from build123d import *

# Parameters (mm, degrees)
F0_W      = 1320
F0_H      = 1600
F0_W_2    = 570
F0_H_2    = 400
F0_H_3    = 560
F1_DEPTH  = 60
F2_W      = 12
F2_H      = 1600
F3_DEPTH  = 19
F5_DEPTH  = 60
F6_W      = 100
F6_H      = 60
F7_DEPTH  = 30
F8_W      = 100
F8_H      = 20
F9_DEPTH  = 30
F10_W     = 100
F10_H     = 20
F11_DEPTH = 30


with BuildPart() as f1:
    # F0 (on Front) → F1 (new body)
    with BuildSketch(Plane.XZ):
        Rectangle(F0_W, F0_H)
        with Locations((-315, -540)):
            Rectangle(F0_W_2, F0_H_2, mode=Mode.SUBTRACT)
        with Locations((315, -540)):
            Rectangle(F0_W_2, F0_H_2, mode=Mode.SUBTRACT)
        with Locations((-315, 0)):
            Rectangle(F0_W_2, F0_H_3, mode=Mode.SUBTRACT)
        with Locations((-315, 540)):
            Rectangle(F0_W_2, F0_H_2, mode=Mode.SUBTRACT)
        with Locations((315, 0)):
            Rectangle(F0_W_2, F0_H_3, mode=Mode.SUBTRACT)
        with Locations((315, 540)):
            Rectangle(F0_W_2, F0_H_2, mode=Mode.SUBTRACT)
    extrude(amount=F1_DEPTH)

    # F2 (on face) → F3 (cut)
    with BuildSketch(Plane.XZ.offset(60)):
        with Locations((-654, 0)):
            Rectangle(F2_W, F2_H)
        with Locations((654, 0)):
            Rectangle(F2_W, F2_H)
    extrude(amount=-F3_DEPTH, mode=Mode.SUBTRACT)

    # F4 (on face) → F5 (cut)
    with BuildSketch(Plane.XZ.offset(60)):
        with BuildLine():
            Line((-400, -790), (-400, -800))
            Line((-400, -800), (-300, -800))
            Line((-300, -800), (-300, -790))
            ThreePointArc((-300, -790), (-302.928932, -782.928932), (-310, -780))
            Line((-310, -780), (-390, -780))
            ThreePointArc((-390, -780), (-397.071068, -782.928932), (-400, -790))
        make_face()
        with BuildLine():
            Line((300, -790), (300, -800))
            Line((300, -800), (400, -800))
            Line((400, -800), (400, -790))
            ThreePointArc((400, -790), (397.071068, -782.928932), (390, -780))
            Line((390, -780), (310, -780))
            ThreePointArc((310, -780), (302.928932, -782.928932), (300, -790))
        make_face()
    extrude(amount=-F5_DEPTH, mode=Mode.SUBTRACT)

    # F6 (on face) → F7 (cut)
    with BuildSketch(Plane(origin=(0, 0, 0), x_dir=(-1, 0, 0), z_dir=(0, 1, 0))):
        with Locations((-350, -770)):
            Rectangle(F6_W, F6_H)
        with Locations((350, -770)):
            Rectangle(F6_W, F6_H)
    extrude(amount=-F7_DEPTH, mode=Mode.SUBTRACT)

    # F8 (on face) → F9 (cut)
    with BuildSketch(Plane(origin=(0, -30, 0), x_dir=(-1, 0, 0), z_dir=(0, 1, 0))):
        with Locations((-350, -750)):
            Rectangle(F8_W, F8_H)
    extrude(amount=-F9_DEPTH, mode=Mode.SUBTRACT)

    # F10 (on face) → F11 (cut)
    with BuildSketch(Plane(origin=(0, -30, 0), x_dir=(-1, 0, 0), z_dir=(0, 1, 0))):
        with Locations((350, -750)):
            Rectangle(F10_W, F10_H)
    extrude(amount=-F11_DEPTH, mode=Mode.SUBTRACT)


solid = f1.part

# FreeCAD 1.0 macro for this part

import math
import FreeCAD as App
import Part
import Sketcher

V = App.Vector
Q = App.Units.Quantity

doc = App.newDocument("Part")
body = doc.addObject("PartDesign::Body", "Body")

# Sketch on XZ plane
sketch1 = body.newObject("Sketcher::SketchObject", "Sketch")
sketch1.AttachmentSupport = (doc.getObject("XZ_Plane"), [""])
sketch1.MapMode = "FlatFace"
sketch1.addGeometry([
    Part.LineSegment(V(-660, 800, 0), V(-660, -800, 0)),  # 0
    Part.LineSegment(V(-660, -800, 0), V(660, -800, 0)),  # 1
    Part.LineSegment(V(660, -800, 0), V(660, 800, 0)),  # 2
    Part.LineSegment(V(660, 800, 0), V(-660, 800, 0)),  # 3
    Part.LineSegment(V(-30, -740, 0), V(-600, -740, 0)),  # 4
    Part.LineSegment(V(-600, -740, 0), V(-600, -340, 0)),  # 5
    Part.LineSegment(V(-600, -340, 0), V(-30, -340, 0)),  # 6
    Part.LineSegment(V(-30, -340, 0), V(-30, -740, 0)),  # 7
    Part.LineSegment(V(600, -740, 0), V(30, -740, 0)),  # 8
    Part.LineSegment(V(30, -740, 0), V(30, -340, 0)),  # 9
    Part.LineSegment(V(30, -340, 0), V(600, -340, 0)),  # 10
    Part.LineSegment(V(600, -340, 0), V(600, -740, 0)),  # 11
    Part.LineSegment(V(-30, -280, 0), V(-600, -280, 0)),  # 12
    Part.LineSegment(V(-600, -280, 0), V(-600, 280, 0)),  # 13
    Part.LineSegment(V(-600, 280, 0), V(-30, 280, 0)),  # 14
    Part.LineSegment(V(-30, 280, 0), V(-30, -280, 0)),  # 15
    Part.LineSegment(V(-30, 340, 0), V(-600, 340, 0)),  # 16
    Part.LineSegment(V(-600, 340, 0), V(-600, 740, 0)),  # 17
    Part.LineSegment(V(-600, 740, 0), V(-30, 740, 0)),  # 18
    Part.LineSegment(V(-30, 740, 0), V(-30, 340, 0)),  # 19
    Part.LineSegment(V(600, -280, 0), V(30, -280, 0)),  # 20
    Part.LineSegment(V(30, -280, 0), V(30, 280, 0)),  # 21
    Part.LineSegment(V(30, 280, 0), V(600, 280, 0)),  # 22
    Part.LineSegment(V(600, 280, 0), V(600, -280, 0)),  # 23
    Part.LineSegment(V(600, 340, 0), V(30, 340, 0)),  # 24
    Part.LineSegment(V(30, 340, 0), V(30, 740, 0)),  # 25
    Part.LineSegment(V(30, 740, 0), V(600, 740, 0)),  # 26
    Part.LineSegment(V(600, 740, 0), V(600, 340, 0)),  # 27
], False)
sketch1.addConstraint([
    Sketcher.Constraint("Coincident", 0, 2, 1, 1),
    Sketcher.Constraint("Coincident", 1, 2, 2, 1),
    Sketcher.Constraint("Coincident", 2, 2, 3, 1),
    Sketcher.Constraint("Coincident", 3, 2, 0, 1),
    Sketcher.Constraint("Coincident", 4, 2, 5, 1),
    Sketcher.Constraint("Coincident", 5, 2, 6, 1),
    Sketcher.Constraint("Coincident", 6, 2, 7, 1),
    Sketcher.Constraint("Coincident", 7, 2, 4, 1),
    Sketcher.Constraint("Coincident", 8, 2, 9, 1),
    Sketcher.Constraint("Coincident", 9, 2, 10, 1),
    Sketcher.Constraint("Coincident", 10, 2, 11, 1),
    Sketcher.Constraint("Coincident", 11, 2, 8, 1),
    Sketcher.Constraint("Coincident", 12, 2, 13, 1),
    Sketcher.Constraint("Coincident", 13, 2, 14, 1),
    Sketcher.Constraint("Coincident", 14, 2, 15, 1),
    Sketcher.Constraint("Coincident", 15, 2, 12, 1),
    Sketcher.Constraint("Coincident", 16, 2, 17, 1),
    Sketcher.Constraint("Coincident", 17, 2, 18, 1),
    Sketcher.Constraint("Coincident", 18, 2, 19, 1),
    Sketcher.Constraint("Coincident", 19, 2, 16, 1),
    Sketcher.Constraint("Coincident", 20, 2, 21, 1),
    Sketcher.Constraint("Coincident", 21, 2, 22, 1),
    Sketcher.Constraint("Coincident", 22, 2, 23, 1),
    Sketcher.Constraint("Coincident", 23, 2, 20, 1),
    Sketcher.Constraint("Coincident", 24, 2, 25, 1),
    Sketcher.Constraint("Coincident", 25, 2, 26, 1),
    Sketcher.Constraint("Coincident", 26, 2, 27, 1),
    Sketcher.Constraint("Coincident", 27, 2, 24, 1),
    Sketcher.Constraint("Vertical", 0),
    Sketcher.Constraint("Horizontal", 1),
    Sketcher.Constraint("Vertical", 2),
    Sketcher.Constraint("Horizontal", 3),
    Sketcher.Constraint("Horizontal", 4),
    Sketcher.Constraint("Vertical", 5),
    Sketcher.Constraint("Horizontal", 6),
    Sketcher.Constraint("Vertical", 7),
    Sketcher.Constraint("Horizontal", 8),
    Sketcher.Constraint("Vertical", 9),
    Sketcher.Constraint("Horizontal", 10),
    Sketcher.Constraint("Vertical", 11),
    Sketcher.Constraint("Horizontal", 12),
    Sketcher.Constraint("Vertical", 13),
    Sketcher.Constraint("Horizontal", 14),
    Sketcher.Constraint("Vertical", 15),
    Sketcher.Constraint("Horizontal", 16),
    Sketcher.Constraint("Vertical", 17),
    Sketcher.Constraint("Horizontal", 18),
    Sketcher.Constraint("Vertical", 19),
    Sketcher.Constraint("Horizontal", 20),
    Sketcher.Constraint("Vertical", 21),
    Sketcher.Constraint("Horizontal", 22),
    Sketcher.Constraint("Vertical", 23),
    Sketcher.Constraint("Horizontal", 24),
    Sketcher.Constraint("Vertical", 25),
    Sketcher.Constraint("Horizontal", 26),
    Sketcher.Constraint("Vertical", 27),
    Sketcher.Constraint("Symmetric", 0, 2, 2, 2, -1, 1),
    Sketcher.Constraint("Symmetric", 10, 2, 16, 2, -1, 1),
    Sketcher.Constraint("Symmetric", 8, 2, 18, 2, -1, 1),
    Sketcher.Constraint("Symmetric", 14, 2, 20, 2, -1, 1),
    Sketcher.Constraint("Symmetric", 12, 2, 22, 2, -1, 1),
    Sketcher.Constraint("Symmetric", 6, 2, 24, 2, -1, 1),
    Sketcher.Constraint("Symmetric", 4, 2, 26, 2, -1, 1),
    Sketcher.Constraint("Symmetric", 7, 2, 8, 2, -2),
    Sketcher.Constraint("Symmetric", 5, 2, 10, 2, -2),
    Sketcher.Constraint("Horizontal", 15, 2, 20, 2),
    Sketcher.Constraint("Vertical", 5, 2, 12, 2),
    Sketcher.Constraint("Vertical", 7, 2, 14, 2),
    Sketcher.Constraint("DistanceX", 1, 1, 1, 2, Q("1320 mm")),
    Sketcher.Constraint("DistanceX", 4, 2, 4, 1, Q("570 mm")),
    Sketcher.Constraint("DistanceY", 0, 2, 0, 1, Q("1600 mm")),
    Sketcher.Constraint("DistanceY", 5, 1, 5, 2, Q("400 mm")),
    Sketcher.Constraint("DistanceY", 13, 1, 13, 2, Q("560 mm")),
    Sketcher.Constraint("DistanceX", 4, 2, -1, 1, Q("600 mm")),
    Sketcher.Constraint("DistanceY", 4, 2, -1, 1, Q("740 mm")),
])
pad1 = body.newObject("PartDesign::Pad", "Pad")
pad1.Profile = sketch1
pad1.Length = 60

# Sketch on XZ plane
sketch2 = body.newObject("Sketcher::SketchObject", "Sketch001")
sketch2.AttachmentSupport = (doc.getObject("XZ_Plane"), [""])
sketch2.MapMode = "FlatFace"
sketch2.AttachmentOffset = App.Placement(V(0, 0, 60), App.Rotation())
sketch2.addGeometry([
    Part.LineSegment(V(-660, 800, 0), V(-660, -800, 0)),  # 0
    Part.LineSegment(V(-660, -800, 0), V(-648, -800, 0)),  # 1
    Part.LineSegment(V(-648, -800, 0), V(-648, 800, 0)),  # 2
    Part.LineSegment(V(-648, 800, 0), V(-660, 800, 0)),  # 3
    Part.LineSegment(V(648, 800, 0), V(648, -800, 0)),  # 4
    Part.LineSegment(V(648, -800, 0), V(660, -800, 0)),  # 5
    Part.LineSegment(V(660, -800, 0), V(660, 800, 0)),  # 6
    Part.LineSegment(V(660, 800, 0), V(648, 800, 0)),  # 7
], False)
sketch2.addConstraint([
    Sketcher.Constraint("Coincident", 0, 2, 1, 1),
    Sketcher.Constraint("Coincident", 1, 2, 2, 1),
    Sketcher.Constraint("Coincident", 2, 2, 3, 1),
    Sketcher.Constraint("Coincident", 3, 2, 0, 1),
    Sketcher.Constraint("Coincident", 4, 2, 5, 1),
    Sketcher.Constraint("Coincident", 5, 2, 6, 1),
    Sketcher.Constraint("Coincident", 6, 2, 7, 1),
    Sketcher.Constraint("Coincident", 7, 2, 4, 1),
    Sketcher.Constraint("Vertical", 0),
    Sketcher.Constraint("Horizontal", 1),
    Sketcher.Constraint("Vertical", 2),
    Sketcher.Constraint("Horizontal", 3),
    Sketcher.Constraint("Vertical", 4),
    Sketcher.Constraint("Horizontal", 5),
    Sketcher.Constraint("Vertical", 6),
    Sketcher.Constraint("Horizontal", 7),
    Sketcher.Constraint("Symmetric", 2, 2, 4, 2, -1, 1),
    Sketcher.Constraint("Symmetric", 0, 2, 6, 2, -1, 1),
    Sketcher.Constraint("Horizontal", 1, 2, 4, 2),
    Sketcher.Constraint("DistanceX", 1, 1, 1, 2, Q("12 mm")),
    Sketcher.Constraint("DistanceY", 0, 2, 0, 1, Q("1600 mm")),
    Sketcher.Constraint("DistanceX", 0, 2, -1, 1, Q("660 mm")),
])
pocket1 = body.newObject("PartDesign::Pocket", "Pocket")
pocket1.Profile = sketch2
pocket1.Length = 19

# Sketch on XZ plane
sketch3 = body.newObject("Sketcher::SketchObject", "Sketch002")
sketch3.AttachmentSupport = (doc.getObject("XZ_Plane"), [""])
sketch3.MapMode = "FlatFace"
sketch3.AttachmentOffset = App.Placement(V(0, 0, 60), App.Rotation())
sketch3.addGeometry([
    Part.LineSegment(V(-400, -790, 0), V(-400, -800, 0)),  # 0
    Part.LineSegment(V(-400, -800, 0), V(-300, -800, 0)),  # 1
    Part.LineSegment(V(-300, -800, 0), V(-300, -790, 0)),  # 2
    Part.ArcOfCircle(Part.Circle(V(-309.999999, -789.999999, 0), V(0, 0, 1), 9.999999), math.radians(-0.000004), math.radians(90.000004)),  # 3
    Part.LineSegment(V(-310, -780, 0), V(-390, -780, 0)),  # 4
    Part.ArcOfCircle(Part.Circle(V(-390.000001, -789.999999, 0), V(0, 0, 1), 9.999999), math.radians(89.999996), math.radians(180.000004)),  # 5
    Part.LineSegment(V(300, -790, 0), V(300, -800, 0)),  # 6
    Part.LineSegment(V(300, -800, 0), V(400, -800, 0)),  # 7
    Part.LineSegment(V(400, -800, 0), V(400, -790, 0)),  # 8
    Part.ArcOfCircle(Part.Circle(V(390.000001, -789.999999, 0), V(0, 0, 1), 9.999999), math.radians(-0.000004), math.radians(90.000004)),  # 9
    Part.LineSegment(V(390, -780, 0), V(310, -780, 0)),  # 10
    Part.ArcOfCircle(Part.Circle(V(309.999999, -789.999999, 0), V(0, 0, 1), 9.999999), math.radians(89.999996), math.radians(180.000004)),  # 11
], False)
sketch3.addConstraint([
    Sketcher.Constraint("Coincident", 0, 2, 1, 1),
    Sketcher.Constraint("Coincident", 1, 2, 2, 1),
    Sketcher.Constraint("Tangent", 2, 2, 3, 1),
    Sketcher.Constraint("Tangent", 3, 2, 4, 1),
    Sketcher.Constraint("Tangent", 4, 2, 5, 1),
    Sketcher.Constraint("Tangent", 5, 2, 0, 1),
    Sketcher.Constraint("Coincident", 6, 2, 7, 1),
    Sketcher.Constraint("Coincident", 7, 2, 8, 1),
    Sketcher.Constraint("Tangent", 8, 2, 9, 1),
    Sketcher.Constraint("Tangent", 9, 2, 10, 1),
    Sketcher.Constraint("Tangent", 10, 2, 11, 1),
    Sketcher.Constraint("Tangent", 11, 2, 6, 1),
    Sketcher.Constraint("Vertical", 0),
    Sketcher.Constraint("Horizontal", 1),
    Sketcher.Constraint("Vertical", 2),
    Sketcher.Constraint("Horizontal", 4),
    Sketcher.Constraint("Vertical", 6),
    Sketcher.Constraint("Horizontal", 7),
    Sketcher.Constraint("Vertical", 8),
    Sketcher.Constraint("Horizontal", 10),
    Sketcher.Constraint("Equal", 3, 5),
    Sketcher.Constraint("Equal", 5, 9),
    Sketcher.Constraint("Equal", 9, 11),
    Sketcher.Constraint("Symmetric", 5, 3, 9, 3, -2),
    Sketcher.Constraint("Symmetric", 1, 2, 6, 2, -2),
    Sketcher.Constraint("Radius", 3, Q("9.999999 mm")),
    Sketcher.Constraint("DistanceX", 1, 1, 1, 2, Q("100 mm")),
    Sketcher.Constraint("DistanceY", 0, 2, 0, 1, Q("10 mm")),
    Sketcher.Constraint("DistanceX", 3, 3, -1, 1, Q("309.999999 mm")),
    Sketcher.Constraint("DistanceY", 3, 3, -1, 1, Q("789.999999 mm")),
])
pocket2 = body.newObject("PartDesign::Pocket", "Pocket001")
pocket2.Profile = sketch3
pocket2.Length = 60

# Sketch on XZ plane
sketch4 = body.newObject("Sketcher::SketchObject", "Sketch003")
sketch4.AttachmentSupport = (doc.getObject("XZ_Plane"), [""])
sketch4.MapMode = "FlatFace"
sketch4.addGeometry([
    Part.LineSegment(V(400, -740, 0), V(400, -800, 0)),  # 0
    Part.LineSegment(V(400, -800, 0), V(300, -800, 0)),  # 1
    Part.LineSegment(V(300, -800, 0), V(300, -740, 0)),  # 2
    Part.LineSegment(V(300, -740, 0), V(400, -740, 0)),  # 3
    Part.LineSegment(V(-300, -740, 0), V(-300, -800, 0)),  # 4
    Part.LineSegment(V(-300, -800, 0), V(-400, -800, 0)),  # 5
    Part.LineSegment(V(-400, -800, 0), V(-400, -740, 0)),  # 6
    Part.LineSegment(V(-400, -740, 0), V(-300, -740, 0)),  # 7
], False)
sketch4.addConstraint([
    Sketcher.Constraint("Coincident", 0, 2, 1, 1),
    Sketcher.Constraint("Coincident", 1, 2, 2, 1),
    Sketcher.Constraint("Coincident", 2, 2, 3, 1),
    Sketcher.Constraint("Coincident", 3, 2, 0, 1),
    Sketcher.Constraint("Coincident", 4, 2, 5, 1),
    Sketcher.Constraint("Coincident", 5, 2, 6, 1),
    Sketcher.Constraint("Coincident", 6, 2, 7, 1),
    Sketcher.Constraint("Coincident", 7, 2, 4, 1),
    Sketcher.Constraint("Vertical", 0),
    Sketcher.Constraint("Horizontal", 1),
    Sketcher.Constraint("Vertical", 2),
    Sketcher.Constraint("Horizontal", 3),
    Sketcher.Constraint("Vertical", 4),
    Sketcher.Constraint("Horizontal", 5),
    Sketcher.Constraint("Vertical", 6),
    Sketcher.Constraint("Horizontal", 7),
    Sketcher.Constraint("Symmetric", 1, 2, 4, 2, -2),
    Sketcher.Constraint("Symmetric", 3, 2, 6, 2, -2),
    Sketcher.Constraint("DistanceX", 1, 2, 1, 1, Q("100 mm")),
    Sketcher.Constraint("DistanceY", 0, 2, 0, 1, Q("60 mm")),
    Sketcher.Constraint("DistanceX", -1, 1, 0, 2, Q("400 mm")),
    Sketcher.Constraint("DistanceY", 0, 2, -1, 1, Q("800 mm")),
])
pocket3 = body.newObject("PartDesign::Pocket", "Pocket002")
pocket3.Profile = sketch4
pocket3.Length = 30
pocket3.Reversed = True

# Sketch on XZ plane
sketch5 = body.newObject("Sketcher::SketchObject", "Sketch004")
sketch5.AttachmentSupport = (doc.getObject("XZ_Plane"), [""])
sketch5.MapMode = "FlatFace"
sketch5.AttachmentOffset = App.Placement(V(0, 0, 30), App.Rotation())
sketch5.addGeometry([
    Part.LineSegment(V(400, -740, 0), V(400, -760, 0)),
    Part.LineSegment(V(400, -760, 0), V(300, -760, 0)),
    Part.LineSegment(V(300, -760, 0), V(300, -740, 0)),
    Part.LineSegment(V(300, -740, 0), V(400, -740, 0)),
], False)
sketch5.addConstraint([
    Sketcher.Constraint("Coincident", 0, 2, 1, 1),
    Sketcher.Constraint("Coincident", 1, 2, 2, 1),
    Sketcher.Constraint("Coincident", 2, 2, 3, 1),
    Sketcher.Constraint("Coincident", 3, 2, 0, 1),
    Sketcher.Constraint("Vertical", 0),
    Sketcher.Constraint("Horizontal", 1),
    Sketcher.Constraint("Vertical", 2),
    Sketcher.Constraint("Horizontal", 3),
    Sketcher.Constraint("DistanceX", 1, 2, 1, 1, Q("100 mm")),
    Sketcher.Constraint("DistanceY", 0, 2, 0, 1, Q("20 mm")),
    Sketcher.Constraint("DistanceX", -1, 1, 0, 2, Q("400 mm")),
    Sketcher.Constraint("DistanceY", 0, 2, -1, 1, Q("760 mm")),
])
pocket4 = body.newObject("PartDesign::Pocket", "Pocket003")
pocket4.Profile = sketch5
pocket4.Length = 30
pocket4.Reversed = True

# Sketch on XZ plane
sketch6 = body.newObject("Sketcher::SketchObject", "Sketch005")
sketch6.AttachmentSupport = (doc.getObject("XZ_Plane"), [""])
sketch6.MapMode = "FlatFace"
sketch6.AttachmentOffset = App.Placement(V(0, 0, 30), App.Rotation())
sketch6.addGeometry([
    Part.LineSegment(V(-300, -740, 0), V(-300, -760, 0)),
    Part.LineSegment(V(-300, -760, 0), V(-400, -760, 0)),
    Part.LineSegment(V(-400, -760, 0), V(-400, -740, 0)),
    Part.LineSegment(V(-400, -740, 0), V(-300, -740, 0)),
], False)
sketch6.addConstraint([
    Sketcher.Constraint("Coincident", 0, 2, 1, 1),
    Sketcher.Constraint("Coincident", 1, 2, 2, 1),
    Sketcher.Constraint("Coincident", 2, 2, 3, 1),
    Sketcher.Constraint("Coincident", 3, 2, 0, 1),
    Sketcher.Constraint("Vertical", 0),
    Sketcher.Constraint("Horizontal", 1),
    Sketcher.Constraint("Vertical", 2),
    Sketcher.Constraint("Horizontal", 3),
    Sketcher.Constraint("DistanceX", 1, 2, 1, 1, Q("100 mm")),
    Sketcher.Constraint("DistanceY", 0, 2, 0, 1, Q("20 mm")),
    Sketcher.Constraint("DistanceX", 0, 2, -1, 1, Q("300 mm")),
    Sketcher.Constraint("DistanceY", 0, 2, -1, 1, Q("760 mm")),
])
pocket5 = body.newObject("PartDesign::Pocket", "Pocket004")
pocket5.Profile = sketch6
pocket5.Length = 30
pocket5.Reversed = True

doc.recompute()
